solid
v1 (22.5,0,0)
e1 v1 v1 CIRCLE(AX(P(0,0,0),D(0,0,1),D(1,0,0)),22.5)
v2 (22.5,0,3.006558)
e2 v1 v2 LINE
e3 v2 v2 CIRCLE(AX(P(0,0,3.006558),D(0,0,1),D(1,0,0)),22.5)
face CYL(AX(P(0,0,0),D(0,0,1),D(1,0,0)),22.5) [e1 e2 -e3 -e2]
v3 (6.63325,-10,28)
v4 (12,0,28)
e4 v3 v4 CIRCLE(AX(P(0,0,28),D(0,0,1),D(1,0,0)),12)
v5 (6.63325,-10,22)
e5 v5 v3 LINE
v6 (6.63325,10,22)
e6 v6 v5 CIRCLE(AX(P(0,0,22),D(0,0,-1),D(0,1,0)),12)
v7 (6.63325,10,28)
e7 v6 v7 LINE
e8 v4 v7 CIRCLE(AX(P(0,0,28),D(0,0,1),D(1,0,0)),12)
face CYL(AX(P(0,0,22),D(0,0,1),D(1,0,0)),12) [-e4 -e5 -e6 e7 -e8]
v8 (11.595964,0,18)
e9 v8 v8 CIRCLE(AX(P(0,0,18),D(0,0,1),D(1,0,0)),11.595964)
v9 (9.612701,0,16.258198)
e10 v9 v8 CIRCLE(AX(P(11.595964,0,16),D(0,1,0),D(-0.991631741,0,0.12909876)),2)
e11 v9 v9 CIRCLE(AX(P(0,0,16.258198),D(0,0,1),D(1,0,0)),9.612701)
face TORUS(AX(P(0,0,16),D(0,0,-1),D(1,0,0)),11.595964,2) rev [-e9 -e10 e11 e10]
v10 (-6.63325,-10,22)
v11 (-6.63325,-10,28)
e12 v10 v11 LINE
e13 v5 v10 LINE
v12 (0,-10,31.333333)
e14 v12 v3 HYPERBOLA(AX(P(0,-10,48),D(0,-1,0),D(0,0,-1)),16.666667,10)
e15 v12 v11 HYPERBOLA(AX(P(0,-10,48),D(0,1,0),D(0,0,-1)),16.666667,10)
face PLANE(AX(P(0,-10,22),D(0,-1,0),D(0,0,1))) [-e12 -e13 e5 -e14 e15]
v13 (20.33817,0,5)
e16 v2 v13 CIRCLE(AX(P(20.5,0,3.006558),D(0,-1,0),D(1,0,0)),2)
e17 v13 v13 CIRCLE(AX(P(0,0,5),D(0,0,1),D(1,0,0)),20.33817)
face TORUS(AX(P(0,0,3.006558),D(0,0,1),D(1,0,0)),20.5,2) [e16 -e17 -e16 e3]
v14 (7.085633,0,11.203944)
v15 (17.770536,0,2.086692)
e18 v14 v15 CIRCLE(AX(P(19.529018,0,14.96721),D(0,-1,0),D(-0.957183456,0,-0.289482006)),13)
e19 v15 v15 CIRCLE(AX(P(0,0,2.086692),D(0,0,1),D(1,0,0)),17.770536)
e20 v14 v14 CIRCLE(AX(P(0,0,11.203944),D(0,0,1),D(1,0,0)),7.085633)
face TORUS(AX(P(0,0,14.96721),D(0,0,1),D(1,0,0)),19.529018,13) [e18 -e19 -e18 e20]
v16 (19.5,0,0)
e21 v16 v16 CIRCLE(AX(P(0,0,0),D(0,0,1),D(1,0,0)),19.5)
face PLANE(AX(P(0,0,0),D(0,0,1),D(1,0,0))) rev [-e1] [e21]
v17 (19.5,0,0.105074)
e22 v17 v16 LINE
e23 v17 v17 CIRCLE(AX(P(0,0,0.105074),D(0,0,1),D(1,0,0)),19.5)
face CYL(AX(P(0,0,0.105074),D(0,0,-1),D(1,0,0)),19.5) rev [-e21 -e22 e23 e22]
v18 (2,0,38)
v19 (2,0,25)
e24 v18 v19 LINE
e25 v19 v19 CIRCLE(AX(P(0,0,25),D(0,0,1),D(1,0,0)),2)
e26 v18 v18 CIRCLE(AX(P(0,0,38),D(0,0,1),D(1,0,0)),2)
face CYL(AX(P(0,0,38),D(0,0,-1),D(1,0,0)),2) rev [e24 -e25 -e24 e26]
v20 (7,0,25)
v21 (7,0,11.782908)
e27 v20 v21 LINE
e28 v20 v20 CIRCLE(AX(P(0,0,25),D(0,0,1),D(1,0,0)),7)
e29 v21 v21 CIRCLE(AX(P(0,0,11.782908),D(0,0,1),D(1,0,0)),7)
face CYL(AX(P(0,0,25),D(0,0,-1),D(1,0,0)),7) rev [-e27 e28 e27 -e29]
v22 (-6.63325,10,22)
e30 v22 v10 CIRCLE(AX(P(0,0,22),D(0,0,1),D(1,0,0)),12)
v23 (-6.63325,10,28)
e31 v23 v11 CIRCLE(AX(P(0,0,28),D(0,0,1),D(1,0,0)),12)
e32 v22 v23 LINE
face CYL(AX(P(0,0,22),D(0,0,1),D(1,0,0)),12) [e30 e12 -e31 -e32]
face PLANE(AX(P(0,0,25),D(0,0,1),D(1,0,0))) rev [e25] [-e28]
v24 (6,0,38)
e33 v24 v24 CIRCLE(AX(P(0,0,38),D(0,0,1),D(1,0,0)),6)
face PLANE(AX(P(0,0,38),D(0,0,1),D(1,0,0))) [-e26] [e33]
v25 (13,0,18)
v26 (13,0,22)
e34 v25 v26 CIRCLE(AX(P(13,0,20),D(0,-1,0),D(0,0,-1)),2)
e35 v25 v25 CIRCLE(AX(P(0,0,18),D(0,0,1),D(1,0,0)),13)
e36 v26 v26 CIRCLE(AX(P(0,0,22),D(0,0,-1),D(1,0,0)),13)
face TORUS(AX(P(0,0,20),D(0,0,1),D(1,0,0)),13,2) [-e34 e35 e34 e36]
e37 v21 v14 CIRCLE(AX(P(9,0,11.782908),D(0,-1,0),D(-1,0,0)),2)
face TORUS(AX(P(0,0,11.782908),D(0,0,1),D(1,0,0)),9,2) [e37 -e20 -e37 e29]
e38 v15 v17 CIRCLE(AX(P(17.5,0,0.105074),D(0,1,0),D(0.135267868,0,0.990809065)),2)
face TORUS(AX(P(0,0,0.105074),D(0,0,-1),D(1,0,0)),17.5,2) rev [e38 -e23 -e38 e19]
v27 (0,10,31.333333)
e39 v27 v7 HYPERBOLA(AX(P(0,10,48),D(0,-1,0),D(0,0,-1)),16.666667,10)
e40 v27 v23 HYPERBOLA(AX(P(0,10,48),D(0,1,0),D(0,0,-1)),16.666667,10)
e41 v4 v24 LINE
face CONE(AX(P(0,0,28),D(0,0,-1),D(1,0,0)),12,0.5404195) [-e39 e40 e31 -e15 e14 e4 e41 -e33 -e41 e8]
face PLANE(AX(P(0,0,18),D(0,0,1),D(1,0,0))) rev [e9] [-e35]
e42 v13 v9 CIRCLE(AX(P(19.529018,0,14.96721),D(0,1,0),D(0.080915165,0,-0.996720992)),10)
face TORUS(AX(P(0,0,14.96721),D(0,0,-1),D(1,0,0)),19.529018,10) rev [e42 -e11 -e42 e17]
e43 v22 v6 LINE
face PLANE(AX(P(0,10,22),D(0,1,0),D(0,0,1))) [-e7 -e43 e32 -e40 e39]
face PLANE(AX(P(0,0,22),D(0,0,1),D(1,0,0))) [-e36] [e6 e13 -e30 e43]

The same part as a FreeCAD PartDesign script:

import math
import FreeCAD as App
import Part
import Sketcher

V = App.Vector
Q = App.Units.Quantity

doc = App.newDocument("Part")
params = doc.addObject("Spreadsheet::Sheet", "Params")
for row, (alias, value) in enumerate([
    ("sketch1_radius", "2 mm"),
    ("sketch1_radius2", "10 mm"),
    ("sketch1_radius3", "13 mm"),
    ("sketch1_width", "3 mm"),
    ("sketch1_width2", "1 mm"),
    ("revolution_angle", "360 deg"),
], start=1):
    params.set(f"A{row}", alias)
    params.set(f"B{row}", "=" + value)
    params.setAlias(f"B{row}", alias)

body = doc.addObject("PartDesign::Body", "Body")

# Sketch on XZ plane
sketch1 = body.newObject("Sketcher::SketchObject", "Sketch")
sketch1.AttachmentSupport = (doc.getObject("XZ_Plane"), [""])
sketch1.MapMode = "FlatFace"
sketch1.addGeometry([
    Part.LineSegment(V(19.5, 0.11, 0), V(19.5, 0, 0)),  # 0
    Part.LineSegment(V(19.5, 0, 0), V(22.5, 0, 0)),  # 1
    Part.LineSegment(V(22.5, 0, 0), V(22.5, 3.01, 0)),  # 2
    Part.ArcOfCircle(Part.Circle(V(20.5, 3.01, 0), V(0, 0, 1), 2), math.radians(0), math.radians(95)),  # 3
    Part.ArcOfCircle(Part.Circle(V(19.53, 14.97, 0), V(0, 0, 1), 10), math.radians(173), math.radians(275)),  # 4
    Part.ArcOfCircle(Part.Circle(V(11.6, 16, 0), V(0, 0, 1), 2), math.radians(90), math.radians(173)),  # 5
    Part.LineSegment(V(11.6, 18, 0), V(13, 18, 0)),  # 6
    Part.ArcOfCircle(Part.Circle(V(13, 20, 0), V(0, 0, 1), 2), math.radians(-90), math.radians(90)),  # 7
    Part.LineSegment(V(13, 22, 0), V(12, 22, 0)),  # 8
    Part.LineSegment(V(12, 22, 0), V(12, 28, 0)),  # 9
    Part.LineSegment(V(12, 28, 0), V(6, 38, 0)),  # 10
    Part.LineSegment(V(6, 38, 0), V(2, 38, 0)),  # 11
    Part.LineSegment(V(2, 38, 0), V(2, 25, 0)),  # 12
    Part.LineSegment(V(2, 25, 0), V(7, 25, 0)),  # 13
    Part.LineSegment(V(7, 25, 0), V(7, 11.78, 0)),  # 14
    Part.ArcOfCircle(Part.Circle(V(9, 11.78, 0), V(0, 0, 1), 2), math.radians(-180), math.radians(-163.17)),  # 15
    Part.ArcOfCircle(Part.Circle(V(19.53, 14.97, 0), V(0, 0, 1), 13), math.radians(-163), math.radians(-98)),  # 16
    Part.ArcOfCircle(Part.Circle(V(17.5, 0.11, 0), V(0, 0, 1), 2), math.radians(0), math.radians(82)),  # 17
], False)
sketch1.addConstraint([
    Sketcher.Constraint("Coincident", 0, 2, 1, 1),
    Sketcher.Constraint("Coincident", 1, 2, 2, 1),
    Sketcher.Constraint("Tangent", 2, 2, 3, 1),
    Sketcher.Constraint("Tangent", 3, 2, 4, 2),
    Sketcher.Constraint("Tangent", 4, 1, 5, 2),
    Sketcher.Constraint("Tangent", 5, 1, 6, 1),
    Sketcher.Constraint("Tangent", 6, 2, 7, 1),
    Sketcher.Constraint("Tangent", 7, 2, 8, 1),
    Sketcher.Constraint("Coincident", 8, 2, 9, 1),
    Sketcher.Constraint("Coincident", 9, 2, 10, 1),
    Sketcher.Constraint("Coincident", 10, 2, 11, 1),
    Sketcher.Constraint("Coincident", 11, 2, 12, 1),
    Sketcher.Constraint("Coincident", 12, 2, 13, 1),
    Sketcher.Constraint("Coincident", 13, 2, 14, 1),
    Sketcher.Constraint("Tangent", 14, 2, 15, 1),
    Sketcher.Constraint("Tangent", 15, 2, 16, 1),
    Sketcher.Constraint("Tangent", 16, 2, 17, 2),
    Sketcher.Constraint("Tangent", 17, 1, 0, 1),
    Sketcher.Constraint("Vertical", 0),
    Sketcher.Constraint("Horizontal", 1),
    Sketcher.Constraint("Vertical", 2),
    Sketcher.Constraint("Horizontal", 6),
    Sketcher.Constraint("Horizontal", 8),
    Sketcher.Constraint("Vertical", 9),
    Sketcher.Constraint("Horizontal", 11),
    Sketcher.Constraint("Vertical", 12),
    Sketcher.Constraint("Horizontal", 13),
    Sketcher.Constraint("Vertical", 14),
    Sketcher.Constraint("Coincident", 16, 3, 4, 3),
    Sketcher.Constraint("Equal", 3, 5),
    Sketcher.Constraint("Equal", 5, 7),
    Sketcher.Constraint("Equal", 7, 15),
    Sketcher.Constraint("Equal", 15, 17),
    Sketcher.Constraint("PointOnObject", 0, 2, -1),
    Sketcher.Constraint("Radius", 3, Q("2 mm")),
    Sketcher.Constraint("Radius", 4, Q("10 mm")),
    Sketcher.Constraint("Radius", 16, Q("13 mm")),
    Sketcher.Constraint("DistanceX", 1, 1, 1, 2, Q("3 mm")),
    Sketcher.Constraint("DistanceX", 8, 2, 8, 1, Q("1 mm")),
    Sketcher.Constraint("DistanceX", 11, 2, 11, 1, Q("4 mm")),
    Sketcher.Constraint("DistanceX", 13, 1, 13, 2, Q("5 mm")),
    Sketcher.Constraint("DistanceY", 9, 1, 9, 2, Q("6 mm")),
    Sketcher.Constraint("DistanceY", 12, 2, 12, 1, Q("13 mm")),
    Sketcher.Constraint("DistanceY", -1, 1, 5, 3, Q("16 mm")),
    Sketcher.Constraint("DistanceX", -1, 1, 7, 3, Q("13 mm")),
    Sketcher.Constraint("DistanceX", -1, 1, 15, 3, Q("9 mm")),
    Sketcher.Constraint("DistanceY", -1, 1, 3, 2, Q("5 mm")),
    Sketcher.Constraint("DistanceY", -1, 1, 10, 2, Q("38 mm")),
    Sketcher.Constraint("DistanceX", -1, 1, 3, 3, Q("20.5 mm")),
    Sketcher.Constraint("DistanceX", -1, 1, 4, 1, Q("9.612701 mm")),
])
sketch1.setExpression("Constraints[34]", "Params.sketch1_radius")
sketch1.setExpression("Constraints[35]", "Params.sketch1_radius2")
sketch1.setExpression("Constraints[36]", "Params.sketch1_radius3")
sketch1.setExpression("Constraints[37]", "Params.sketch1_width")
sketch1.setExpression("Constraints[38]", "Params.sketch1_width2")
revolution = body.newObject("PartDesign::Revolution", "Revolution")
revolution.Profile = sketch1
revolution.ReferenceAxis = (sketch1, ["V_Axis"])
revolution.setExpression("Angle", "Params.revolution_angle")

# Sketch on YZ plane
sketch2 = body.newObject("Sketcher::SketchObject", "Sketch001")
sketch2.AttachmentSupport = (doc.getObject("YZ_Plane"), [""])
sketch2.MapMode = "FlatFace"
sketch2.addGeometry([
    Part.LineSegment(V(-23, 37, 0), V(-23, 22, 0)),  # 0
    Part.LineSegment(V(-23, 22, 0), V(-10, 22, 0)),  # 1
    Part.LineSegment(V(-10, 22, 0), V(-10, 37, 0)),  # 2
    Part.LineSegment(V(-10, 37, 0), V(-23, 37, 0)),  # 3
    Part.LineSegment(V(10, 36, 0), V(10, 22, 0)),  # 4
    Part.LineSegment(V(10, 22, 0), V(18, 22, 0)),  # 5
    Part.LineSegment(V(18, 22, 0), V(18, 36, 0)),  # 6
    Part.LineSegment(V(18, 36, 0), V(10, 36, 0)),  # 7
], False)
sketch2.addConstraint([
    Sketcher.Constraint("Coincident", 0, 2, 1, 1),
    Sketcher.Constraint("Coincident", 1, 2, 2, 1),
    Sketcher.Constraint("Coincident", 2, 2, 3, 1),
    Sketcher.Constraint("Coincident", 3, 2, 0, 1),
    Sketcher.Constraint("Coincident", 4, 2, 5, 1),
    Sketcher.Constraint("Coincident", 5, 2, 6, 1),
    Sketcher.Constraint("Coincident", 6, 2, 7, 1),
    Sketcher.Constraint("Coincident", 7, 2, 4, 1),
    Sketcher.Constraint("Vertical", 0),
    Sketcher.Constraint("Horizontal", 1),
    Sketcher.Constraint("Vertical", 2),
    Sketcher.Constraint("Horizontal", 3),
    Sketcher.Constraint("Vertical", 4),
    Sketcher.Constraint("Horizontal", 5),
    Sketcher.Constraint("Vertical", 6),
    Sketcher.Constraint("Horizontal", 7),
    Sketcher.Constraint("Symmetric", 1, 2, 4, 2, -2),
    Sketcher.Constraint("DistanceY", -1, 1, 0, 2, Q("22 mm")),
    Sketcher.Constraint("DistanceX", 1, 2, -1, 1, Q("10 mm")),
    Sketcher.Constraint("DistanceX", 1, 1, 1, 2, Q("13.471013 mm")),
    Sketcher.Constraint("DistanceX", 5, 1, 5, 2, Q("8.109326 mm")),
    Sketcher.Constraint("DistanceY", 0, 2, 0, 1, Q("14.710214 mm")),
    Sketcher.Constraint("DistanceY", 4, 2, 4, 1, Q("14.328945 mm")),
])
pocket1 = body.newObject("PartDesign::Pocket", "Pocket")
pocket1.Profile = sketch2
pocket1.Type = "ThroughAll"
pocket1.Midplane = True

doc.recompute()
